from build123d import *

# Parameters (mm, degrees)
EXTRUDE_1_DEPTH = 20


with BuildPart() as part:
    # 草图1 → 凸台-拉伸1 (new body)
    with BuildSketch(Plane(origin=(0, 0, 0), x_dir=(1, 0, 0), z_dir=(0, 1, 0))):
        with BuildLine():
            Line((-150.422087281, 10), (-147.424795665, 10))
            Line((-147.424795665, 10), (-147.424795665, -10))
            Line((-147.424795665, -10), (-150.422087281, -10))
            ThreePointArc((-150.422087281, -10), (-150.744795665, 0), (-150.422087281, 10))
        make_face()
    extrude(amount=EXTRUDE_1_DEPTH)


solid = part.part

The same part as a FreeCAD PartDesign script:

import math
import FreeCAD as App
import Part
import Sketcher
from FreeCAD import Vector

doc = App.newDocument("Part")
body = doc.addObject("PartDesign::Body", "Body")

sketch1 = doc.addObject("Sketcher::SketchObject", "Sketch")
body.addObject(sketch1)
sketch1.AttachmentSupport = (doc.XZ_Plane, [""])
sketch1.MapMode = "FlatFace"
sketch1.addGeometry([
    Part.LineSegment(Vector(-147.4, -10, 0), Vector(-150.4, -10, 0)),
    Part.ArcOfCircle(Part.Circle(Vector(4.4, 0, 0), Vector(0, 0, 1), 155.1), math.radians(176.3), math.radians(183.7)),
    Part.LineSegment(Vector(-150.4, 10, 0), Vector(-147.4, 10, 0)),
    Part.LineSegment(Vector(-147.4, 10, 0), Vector(-147.4, -10, 0)),
], False)
sketch1.addConstraint([
    Sketcher.Constraint("Coincident", 0, 2, 1, 2),
    Sketcher.Constraint("Coincident", 1, 1, 2, 1),
    Sketcher.Constraint("Coincident", 2, 2, 3, 1),
    Sketcher.Constraint("Coincident", 3, 2, 0, 1),
    Sketcher.Constraint("Horizontal", 0),
    Sketcher.Constraint("Horizontal", 2),
    Sketcher.Constraint("Vertical", 3),
    Sketcher.Constraint("Symmetric", 0, 2, 1, 1, -1),
    Sketcher.Constraint("Radius", 1, 155.1),
    Sketcher.Constraint("DistanceY", 3, 2, 3, 1, 20.0),
    Sketcher.Constraint("DistanceX", 2, 2, 1, 3, 151.78),
    Sketcher.Constraint("DistanceX", -1, 1, 1, 3, 4.355204),
])
pad1 = doc.addObject("PartDesign::Pad", "Pad")
body.addObject(pad1)
pad1.Profile = sketch1
pad1.Length = 20
pad1.Reversed = True

doc.recompute()
